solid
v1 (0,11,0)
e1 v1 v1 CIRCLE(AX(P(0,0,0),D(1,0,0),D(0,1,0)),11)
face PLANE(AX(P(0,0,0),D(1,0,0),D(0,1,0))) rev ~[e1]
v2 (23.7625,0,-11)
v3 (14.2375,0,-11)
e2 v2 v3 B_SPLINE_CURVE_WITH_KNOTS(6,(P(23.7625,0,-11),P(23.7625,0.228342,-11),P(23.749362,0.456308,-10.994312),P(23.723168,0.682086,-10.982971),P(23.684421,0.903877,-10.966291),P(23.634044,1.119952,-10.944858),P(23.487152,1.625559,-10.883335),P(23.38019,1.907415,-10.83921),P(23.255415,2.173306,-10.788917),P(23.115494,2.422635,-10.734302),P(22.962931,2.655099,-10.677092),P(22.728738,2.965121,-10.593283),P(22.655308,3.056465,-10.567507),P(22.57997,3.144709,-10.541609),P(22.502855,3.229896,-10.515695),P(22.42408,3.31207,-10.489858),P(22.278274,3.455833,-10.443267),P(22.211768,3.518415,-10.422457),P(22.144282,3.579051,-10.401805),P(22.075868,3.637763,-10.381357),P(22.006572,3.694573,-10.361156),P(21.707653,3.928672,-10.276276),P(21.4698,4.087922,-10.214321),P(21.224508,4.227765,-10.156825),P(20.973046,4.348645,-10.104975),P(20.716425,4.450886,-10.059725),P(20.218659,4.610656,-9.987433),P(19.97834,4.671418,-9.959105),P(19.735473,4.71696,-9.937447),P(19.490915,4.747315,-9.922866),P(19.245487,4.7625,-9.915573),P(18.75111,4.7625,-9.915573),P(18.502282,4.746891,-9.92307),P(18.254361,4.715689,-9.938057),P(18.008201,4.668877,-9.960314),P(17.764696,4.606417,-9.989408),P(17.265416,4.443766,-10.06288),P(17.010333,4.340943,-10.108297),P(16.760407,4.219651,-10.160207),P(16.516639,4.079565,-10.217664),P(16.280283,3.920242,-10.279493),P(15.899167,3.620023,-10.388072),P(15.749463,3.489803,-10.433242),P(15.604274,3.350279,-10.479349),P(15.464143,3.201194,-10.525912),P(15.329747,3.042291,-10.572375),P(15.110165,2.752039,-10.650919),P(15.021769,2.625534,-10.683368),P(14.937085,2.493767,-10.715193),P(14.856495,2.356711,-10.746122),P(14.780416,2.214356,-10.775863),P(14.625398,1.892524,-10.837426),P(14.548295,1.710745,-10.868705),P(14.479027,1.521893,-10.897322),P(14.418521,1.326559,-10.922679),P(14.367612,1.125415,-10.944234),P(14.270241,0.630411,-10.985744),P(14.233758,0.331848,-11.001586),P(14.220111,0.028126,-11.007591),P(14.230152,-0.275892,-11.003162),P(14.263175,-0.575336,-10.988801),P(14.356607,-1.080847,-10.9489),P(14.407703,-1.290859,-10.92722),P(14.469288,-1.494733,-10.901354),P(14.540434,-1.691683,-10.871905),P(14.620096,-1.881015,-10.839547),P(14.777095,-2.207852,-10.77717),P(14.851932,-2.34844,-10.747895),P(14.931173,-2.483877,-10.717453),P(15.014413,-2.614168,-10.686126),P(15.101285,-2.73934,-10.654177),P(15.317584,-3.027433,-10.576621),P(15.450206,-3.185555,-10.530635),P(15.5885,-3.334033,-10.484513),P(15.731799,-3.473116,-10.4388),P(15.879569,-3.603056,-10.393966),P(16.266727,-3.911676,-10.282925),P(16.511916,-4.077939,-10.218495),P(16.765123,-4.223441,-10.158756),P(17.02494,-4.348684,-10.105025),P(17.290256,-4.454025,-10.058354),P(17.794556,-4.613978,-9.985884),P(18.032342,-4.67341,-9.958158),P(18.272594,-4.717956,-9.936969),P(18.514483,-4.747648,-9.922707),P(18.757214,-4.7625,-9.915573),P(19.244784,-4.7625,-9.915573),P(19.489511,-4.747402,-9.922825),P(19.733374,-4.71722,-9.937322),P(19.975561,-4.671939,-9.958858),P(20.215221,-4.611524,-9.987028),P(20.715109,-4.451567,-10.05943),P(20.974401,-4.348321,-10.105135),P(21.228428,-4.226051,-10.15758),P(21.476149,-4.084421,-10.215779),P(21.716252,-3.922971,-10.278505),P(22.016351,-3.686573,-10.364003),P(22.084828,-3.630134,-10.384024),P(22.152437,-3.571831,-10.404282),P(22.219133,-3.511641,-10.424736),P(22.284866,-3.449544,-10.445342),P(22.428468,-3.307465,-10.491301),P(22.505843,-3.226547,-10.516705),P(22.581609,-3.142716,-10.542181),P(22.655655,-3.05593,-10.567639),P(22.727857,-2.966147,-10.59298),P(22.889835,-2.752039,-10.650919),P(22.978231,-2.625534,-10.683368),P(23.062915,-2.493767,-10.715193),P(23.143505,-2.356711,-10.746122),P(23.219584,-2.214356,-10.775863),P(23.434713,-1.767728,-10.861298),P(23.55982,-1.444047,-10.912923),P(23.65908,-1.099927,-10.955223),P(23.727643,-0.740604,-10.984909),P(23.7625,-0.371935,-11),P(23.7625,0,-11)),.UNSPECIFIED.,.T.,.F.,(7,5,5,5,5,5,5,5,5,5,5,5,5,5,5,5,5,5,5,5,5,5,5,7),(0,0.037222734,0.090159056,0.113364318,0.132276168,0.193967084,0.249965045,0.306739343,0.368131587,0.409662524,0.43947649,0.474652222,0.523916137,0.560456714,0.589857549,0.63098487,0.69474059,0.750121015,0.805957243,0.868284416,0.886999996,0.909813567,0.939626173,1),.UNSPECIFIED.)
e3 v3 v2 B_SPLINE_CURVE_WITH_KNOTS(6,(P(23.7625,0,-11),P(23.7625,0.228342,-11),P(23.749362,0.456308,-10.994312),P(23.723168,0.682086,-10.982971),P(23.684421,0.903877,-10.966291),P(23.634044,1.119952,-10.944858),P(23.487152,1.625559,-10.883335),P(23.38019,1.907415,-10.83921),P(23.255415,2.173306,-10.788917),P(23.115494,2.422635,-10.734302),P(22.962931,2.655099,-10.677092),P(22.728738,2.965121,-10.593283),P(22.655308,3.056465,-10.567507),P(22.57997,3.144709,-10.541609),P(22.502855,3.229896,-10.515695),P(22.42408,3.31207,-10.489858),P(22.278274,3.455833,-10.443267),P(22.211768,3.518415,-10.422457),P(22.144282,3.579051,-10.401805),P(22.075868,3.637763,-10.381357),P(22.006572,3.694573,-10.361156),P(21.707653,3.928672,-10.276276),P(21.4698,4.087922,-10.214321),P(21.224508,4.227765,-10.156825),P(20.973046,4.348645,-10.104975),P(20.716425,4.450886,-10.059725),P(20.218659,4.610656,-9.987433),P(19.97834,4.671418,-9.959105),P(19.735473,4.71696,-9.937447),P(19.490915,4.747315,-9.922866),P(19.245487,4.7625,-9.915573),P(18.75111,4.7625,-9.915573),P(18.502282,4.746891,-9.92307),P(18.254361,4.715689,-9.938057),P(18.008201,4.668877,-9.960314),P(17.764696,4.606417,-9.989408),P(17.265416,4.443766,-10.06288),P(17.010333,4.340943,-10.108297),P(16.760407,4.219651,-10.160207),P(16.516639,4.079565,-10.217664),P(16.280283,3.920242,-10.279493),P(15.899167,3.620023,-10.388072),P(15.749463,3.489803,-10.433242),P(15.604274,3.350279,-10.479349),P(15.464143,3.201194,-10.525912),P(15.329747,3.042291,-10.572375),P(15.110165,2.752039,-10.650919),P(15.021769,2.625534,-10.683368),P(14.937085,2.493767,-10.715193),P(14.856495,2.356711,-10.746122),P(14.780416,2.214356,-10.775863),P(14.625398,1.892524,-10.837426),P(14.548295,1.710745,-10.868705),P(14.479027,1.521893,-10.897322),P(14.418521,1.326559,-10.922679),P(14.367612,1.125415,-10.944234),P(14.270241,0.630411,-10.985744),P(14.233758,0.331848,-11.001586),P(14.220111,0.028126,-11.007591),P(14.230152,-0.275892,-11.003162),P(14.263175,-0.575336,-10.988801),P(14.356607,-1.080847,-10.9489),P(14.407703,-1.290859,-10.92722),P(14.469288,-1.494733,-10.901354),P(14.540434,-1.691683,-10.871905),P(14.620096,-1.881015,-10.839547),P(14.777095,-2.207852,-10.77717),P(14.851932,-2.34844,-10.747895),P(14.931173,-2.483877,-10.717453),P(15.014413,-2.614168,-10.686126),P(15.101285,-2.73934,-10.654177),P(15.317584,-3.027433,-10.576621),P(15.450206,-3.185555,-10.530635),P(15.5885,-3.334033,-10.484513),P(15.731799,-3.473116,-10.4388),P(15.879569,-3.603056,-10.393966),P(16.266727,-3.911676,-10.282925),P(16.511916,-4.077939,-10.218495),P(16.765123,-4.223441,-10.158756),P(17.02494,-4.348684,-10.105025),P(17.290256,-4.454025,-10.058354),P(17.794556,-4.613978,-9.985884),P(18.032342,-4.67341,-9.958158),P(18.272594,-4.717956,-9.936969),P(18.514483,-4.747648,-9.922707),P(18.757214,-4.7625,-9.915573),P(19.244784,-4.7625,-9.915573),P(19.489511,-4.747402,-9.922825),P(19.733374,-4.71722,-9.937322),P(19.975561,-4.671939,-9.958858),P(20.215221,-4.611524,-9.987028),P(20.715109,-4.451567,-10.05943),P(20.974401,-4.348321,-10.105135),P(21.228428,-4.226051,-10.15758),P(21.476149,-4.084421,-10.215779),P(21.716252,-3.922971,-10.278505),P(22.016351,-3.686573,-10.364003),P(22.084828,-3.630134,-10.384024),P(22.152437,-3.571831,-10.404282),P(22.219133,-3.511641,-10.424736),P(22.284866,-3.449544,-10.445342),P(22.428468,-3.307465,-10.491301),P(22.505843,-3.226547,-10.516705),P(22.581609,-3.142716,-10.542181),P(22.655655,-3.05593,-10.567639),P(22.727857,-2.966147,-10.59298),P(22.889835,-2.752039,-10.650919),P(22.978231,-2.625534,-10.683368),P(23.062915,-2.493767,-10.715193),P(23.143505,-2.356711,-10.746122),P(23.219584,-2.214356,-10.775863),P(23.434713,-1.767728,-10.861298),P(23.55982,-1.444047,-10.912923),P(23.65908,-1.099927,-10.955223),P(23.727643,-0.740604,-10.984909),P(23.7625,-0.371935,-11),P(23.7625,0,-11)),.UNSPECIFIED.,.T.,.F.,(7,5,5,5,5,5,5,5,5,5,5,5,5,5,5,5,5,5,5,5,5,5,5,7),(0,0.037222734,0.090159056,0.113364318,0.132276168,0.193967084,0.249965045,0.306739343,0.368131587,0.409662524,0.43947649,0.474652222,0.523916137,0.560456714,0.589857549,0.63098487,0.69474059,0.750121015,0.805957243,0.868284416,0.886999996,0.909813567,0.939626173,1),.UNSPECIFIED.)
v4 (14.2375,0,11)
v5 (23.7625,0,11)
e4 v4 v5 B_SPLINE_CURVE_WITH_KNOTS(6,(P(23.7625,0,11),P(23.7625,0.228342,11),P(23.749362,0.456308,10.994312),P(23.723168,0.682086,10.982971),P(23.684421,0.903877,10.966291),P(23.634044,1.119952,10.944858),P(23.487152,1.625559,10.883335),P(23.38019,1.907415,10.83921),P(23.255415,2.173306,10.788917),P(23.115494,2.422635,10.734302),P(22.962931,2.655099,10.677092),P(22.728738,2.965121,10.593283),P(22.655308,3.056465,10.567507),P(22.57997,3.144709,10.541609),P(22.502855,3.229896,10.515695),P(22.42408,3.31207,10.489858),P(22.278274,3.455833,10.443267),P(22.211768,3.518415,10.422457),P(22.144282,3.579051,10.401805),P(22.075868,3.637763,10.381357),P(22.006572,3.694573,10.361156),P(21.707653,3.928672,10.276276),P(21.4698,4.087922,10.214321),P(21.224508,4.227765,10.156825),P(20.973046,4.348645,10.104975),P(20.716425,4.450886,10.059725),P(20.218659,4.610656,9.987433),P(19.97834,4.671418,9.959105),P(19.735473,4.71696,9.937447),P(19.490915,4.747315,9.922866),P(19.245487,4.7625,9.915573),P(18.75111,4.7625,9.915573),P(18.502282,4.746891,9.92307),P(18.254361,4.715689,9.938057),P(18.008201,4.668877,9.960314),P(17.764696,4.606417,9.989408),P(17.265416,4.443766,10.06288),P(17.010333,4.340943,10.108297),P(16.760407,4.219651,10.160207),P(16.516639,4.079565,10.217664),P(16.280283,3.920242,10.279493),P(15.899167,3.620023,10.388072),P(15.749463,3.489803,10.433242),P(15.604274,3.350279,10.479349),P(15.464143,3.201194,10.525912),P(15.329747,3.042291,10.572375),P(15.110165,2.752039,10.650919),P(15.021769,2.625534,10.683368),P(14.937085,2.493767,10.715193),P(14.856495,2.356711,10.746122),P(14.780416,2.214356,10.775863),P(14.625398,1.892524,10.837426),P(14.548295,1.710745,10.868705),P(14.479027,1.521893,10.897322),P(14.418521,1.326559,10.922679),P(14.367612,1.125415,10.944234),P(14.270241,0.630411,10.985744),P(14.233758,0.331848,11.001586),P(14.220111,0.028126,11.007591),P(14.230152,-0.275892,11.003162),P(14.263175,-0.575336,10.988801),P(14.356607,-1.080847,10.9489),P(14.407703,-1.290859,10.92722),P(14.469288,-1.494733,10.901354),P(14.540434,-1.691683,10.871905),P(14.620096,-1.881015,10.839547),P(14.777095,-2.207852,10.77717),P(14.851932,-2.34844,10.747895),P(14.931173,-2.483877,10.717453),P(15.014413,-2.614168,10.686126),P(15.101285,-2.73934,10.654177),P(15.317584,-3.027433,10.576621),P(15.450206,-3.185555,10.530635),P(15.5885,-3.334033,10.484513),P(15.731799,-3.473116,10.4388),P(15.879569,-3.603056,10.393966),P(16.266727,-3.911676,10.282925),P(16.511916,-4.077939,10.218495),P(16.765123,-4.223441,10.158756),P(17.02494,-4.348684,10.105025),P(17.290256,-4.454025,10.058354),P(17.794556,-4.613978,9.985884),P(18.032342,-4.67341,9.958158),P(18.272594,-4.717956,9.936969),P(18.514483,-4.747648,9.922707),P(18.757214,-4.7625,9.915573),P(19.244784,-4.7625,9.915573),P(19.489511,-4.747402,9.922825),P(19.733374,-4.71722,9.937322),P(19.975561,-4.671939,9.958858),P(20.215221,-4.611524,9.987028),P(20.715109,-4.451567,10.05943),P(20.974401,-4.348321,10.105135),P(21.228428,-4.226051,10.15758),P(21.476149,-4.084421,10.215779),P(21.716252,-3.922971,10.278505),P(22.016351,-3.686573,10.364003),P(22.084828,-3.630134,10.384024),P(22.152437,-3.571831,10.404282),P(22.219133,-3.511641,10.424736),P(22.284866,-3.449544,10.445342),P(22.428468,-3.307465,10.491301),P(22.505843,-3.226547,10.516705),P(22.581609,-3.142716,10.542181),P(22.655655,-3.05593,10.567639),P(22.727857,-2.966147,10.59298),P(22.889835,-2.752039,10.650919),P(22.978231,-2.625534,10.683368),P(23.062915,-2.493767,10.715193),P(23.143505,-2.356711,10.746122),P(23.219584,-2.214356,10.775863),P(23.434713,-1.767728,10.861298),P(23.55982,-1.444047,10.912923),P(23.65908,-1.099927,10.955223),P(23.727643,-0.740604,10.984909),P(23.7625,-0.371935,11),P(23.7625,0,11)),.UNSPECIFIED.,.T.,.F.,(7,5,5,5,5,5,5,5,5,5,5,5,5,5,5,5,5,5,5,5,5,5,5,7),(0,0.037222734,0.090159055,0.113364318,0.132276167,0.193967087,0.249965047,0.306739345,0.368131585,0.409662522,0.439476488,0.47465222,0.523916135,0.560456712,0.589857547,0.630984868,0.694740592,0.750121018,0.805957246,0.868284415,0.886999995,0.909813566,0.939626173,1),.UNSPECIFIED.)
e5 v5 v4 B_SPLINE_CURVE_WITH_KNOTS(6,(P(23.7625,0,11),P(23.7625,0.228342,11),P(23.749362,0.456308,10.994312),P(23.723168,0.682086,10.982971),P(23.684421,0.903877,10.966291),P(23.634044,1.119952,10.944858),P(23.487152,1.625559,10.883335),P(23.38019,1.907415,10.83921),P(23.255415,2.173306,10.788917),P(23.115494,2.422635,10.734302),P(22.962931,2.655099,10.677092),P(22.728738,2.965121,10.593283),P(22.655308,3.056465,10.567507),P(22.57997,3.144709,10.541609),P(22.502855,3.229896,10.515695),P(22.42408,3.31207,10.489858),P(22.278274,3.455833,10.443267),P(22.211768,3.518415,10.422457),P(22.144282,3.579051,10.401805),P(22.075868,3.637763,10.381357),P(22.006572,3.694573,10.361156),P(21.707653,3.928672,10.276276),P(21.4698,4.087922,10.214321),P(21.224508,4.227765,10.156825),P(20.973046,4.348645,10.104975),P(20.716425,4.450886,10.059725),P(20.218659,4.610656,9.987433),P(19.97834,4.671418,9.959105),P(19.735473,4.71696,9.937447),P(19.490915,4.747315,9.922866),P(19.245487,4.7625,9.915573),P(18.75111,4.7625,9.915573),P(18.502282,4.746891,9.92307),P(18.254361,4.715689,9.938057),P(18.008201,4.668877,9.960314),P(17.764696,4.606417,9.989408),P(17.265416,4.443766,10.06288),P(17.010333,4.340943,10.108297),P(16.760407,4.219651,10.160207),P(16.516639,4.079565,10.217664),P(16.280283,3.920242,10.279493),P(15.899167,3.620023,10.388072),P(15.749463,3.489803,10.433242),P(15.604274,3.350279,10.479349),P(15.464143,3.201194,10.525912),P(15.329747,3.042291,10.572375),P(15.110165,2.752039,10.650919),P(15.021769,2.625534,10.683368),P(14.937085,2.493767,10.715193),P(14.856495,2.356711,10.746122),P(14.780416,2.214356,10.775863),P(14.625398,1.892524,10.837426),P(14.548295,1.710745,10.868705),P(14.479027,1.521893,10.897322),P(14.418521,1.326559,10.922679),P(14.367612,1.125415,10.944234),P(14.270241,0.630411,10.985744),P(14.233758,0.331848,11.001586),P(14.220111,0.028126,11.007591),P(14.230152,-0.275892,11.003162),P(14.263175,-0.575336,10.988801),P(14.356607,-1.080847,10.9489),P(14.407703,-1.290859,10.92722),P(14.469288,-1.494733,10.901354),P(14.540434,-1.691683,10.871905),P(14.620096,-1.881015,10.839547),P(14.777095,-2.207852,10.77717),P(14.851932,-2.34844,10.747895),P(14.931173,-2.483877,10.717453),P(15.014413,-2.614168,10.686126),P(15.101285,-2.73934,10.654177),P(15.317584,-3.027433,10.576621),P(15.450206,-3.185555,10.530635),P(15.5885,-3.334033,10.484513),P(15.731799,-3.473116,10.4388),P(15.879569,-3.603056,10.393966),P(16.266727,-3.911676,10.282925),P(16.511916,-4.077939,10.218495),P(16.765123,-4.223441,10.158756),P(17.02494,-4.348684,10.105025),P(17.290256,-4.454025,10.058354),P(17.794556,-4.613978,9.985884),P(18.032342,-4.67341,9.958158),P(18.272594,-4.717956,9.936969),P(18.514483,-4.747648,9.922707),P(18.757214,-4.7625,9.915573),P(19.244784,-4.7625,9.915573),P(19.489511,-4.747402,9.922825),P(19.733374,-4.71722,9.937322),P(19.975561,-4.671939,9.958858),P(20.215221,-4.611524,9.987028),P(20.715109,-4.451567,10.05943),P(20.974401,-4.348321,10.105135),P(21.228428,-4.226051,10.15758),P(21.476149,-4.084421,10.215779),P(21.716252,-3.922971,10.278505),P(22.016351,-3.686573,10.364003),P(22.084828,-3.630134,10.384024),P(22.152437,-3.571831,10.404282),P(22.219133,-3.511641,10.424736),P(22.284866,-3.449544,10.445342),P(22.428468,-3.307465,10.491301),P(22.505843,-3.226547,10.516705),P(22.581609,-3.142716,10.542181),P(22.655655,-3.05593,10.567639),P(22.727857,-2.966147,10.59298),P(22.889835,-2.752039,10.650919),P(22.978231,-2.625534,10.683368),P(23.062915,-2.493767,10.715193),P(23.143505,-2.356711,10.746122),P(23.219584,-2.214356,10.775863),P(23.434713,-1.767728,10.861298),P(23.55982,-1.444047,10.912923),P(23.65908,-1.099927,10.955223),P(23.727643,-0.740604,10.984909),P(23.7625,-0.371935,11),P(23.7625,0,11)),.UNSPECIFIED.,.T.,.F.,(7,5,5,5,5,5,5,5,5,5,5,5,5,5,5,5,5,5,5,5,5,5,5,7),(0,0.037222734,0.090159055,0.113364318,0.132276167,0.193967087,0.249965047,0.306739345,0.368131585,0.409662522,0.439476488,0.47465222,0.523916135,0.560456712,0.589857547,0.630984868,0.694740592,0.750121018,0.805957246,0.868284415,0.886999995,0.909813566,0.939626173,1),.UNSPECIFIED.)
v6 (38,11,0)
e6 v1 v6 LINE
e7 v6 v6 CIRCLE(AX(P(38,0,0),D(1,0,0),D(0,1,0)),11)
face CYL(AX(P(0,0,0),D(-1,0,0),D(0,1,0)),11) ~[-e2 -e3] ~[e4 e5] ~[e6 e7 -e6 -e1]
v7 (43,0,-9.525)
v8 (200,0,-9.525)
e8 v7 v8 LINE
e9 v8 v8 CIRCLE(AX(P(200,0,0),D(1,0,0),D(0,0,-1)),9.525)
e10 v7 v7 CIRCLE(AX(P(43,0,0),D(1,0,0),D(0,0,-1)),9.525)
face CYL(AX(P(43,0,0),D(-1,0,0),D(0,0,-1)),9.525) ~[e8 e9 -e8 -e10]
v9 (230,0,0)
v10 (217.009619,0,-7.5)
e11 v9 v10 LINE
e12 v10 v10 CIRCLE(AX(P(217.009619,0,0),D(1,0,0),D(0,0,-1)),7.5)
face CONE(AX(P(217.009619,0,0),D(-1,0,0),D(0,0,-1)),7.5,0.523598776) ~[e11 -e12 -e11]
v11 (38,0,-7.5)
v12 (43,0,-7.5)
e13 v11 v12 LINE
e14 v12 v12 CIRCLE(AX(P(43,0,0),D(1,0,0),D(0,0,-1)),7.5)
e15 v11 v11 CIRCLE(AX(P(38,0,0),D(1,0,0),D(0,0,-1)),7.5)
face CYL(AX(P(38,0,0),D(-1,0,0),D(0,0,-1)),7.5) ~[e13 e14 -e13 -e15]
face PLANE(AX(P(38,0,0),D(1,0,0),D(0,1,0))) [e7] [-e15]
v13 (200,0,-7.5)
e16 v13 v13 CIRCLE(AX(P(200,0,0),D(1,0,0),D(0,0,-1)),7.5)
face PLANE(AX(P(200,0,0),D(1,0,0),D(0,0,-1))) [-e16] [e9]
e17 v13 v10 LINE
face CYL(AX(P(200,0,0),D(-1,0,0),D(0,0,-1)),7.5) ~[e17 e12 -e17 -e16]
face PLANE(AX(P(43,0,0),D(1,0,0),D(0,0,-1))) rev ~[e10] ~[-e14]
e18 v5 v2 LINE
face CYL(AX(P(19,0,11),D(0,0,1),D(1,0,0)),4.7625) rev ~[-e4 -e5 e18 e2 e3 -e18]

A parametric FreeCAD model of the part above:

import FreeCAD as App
import Part
import Sketcher
from FreeCAD import Vector


def edges_at(feature, points):
    """Names of the edges that pass closest to the given points."""
    edges = feature.Shape.Edges
    near = lambda p: min(range(len(edges)), key=lambda i: edges[i].distToShape(Part.Vertex(*p))[0])
    return sorted({f"Edge{near(p) + 1}" for p in points})

doc = App.newDocument("Part")
body = doc.addObject("PartDesign::Body", "Body")

sketch1 = doc.addObject("Sketcher::SketchObject", "Sketch")
body.addObject(sketch1)
sketch1.AttachmentSupport = (doc.YZ_Plane, [""])
sketch1.MapMode = "FlatFace"
sketch1.addGeometry(Part.Circle(Vector(0, 0, 0), Vector(0, 0, 1), 11), False)
sketch1.addConstraint([
    Sketcher.Constraint("Coincident", 0, 3, -1, 1),
    Sketcher.Constraint("Diameter", 0, 22.0),
])
pad1 = doc.addObject("PartDesign::Pad", "Pad")
body.addObject(pad1)
pad1.Profile = sketch1
pad1.Length = 38

sketch2 = doc.addObject("Sketcher::SketchObject", "Sketch001")
body.addObject(sketch2)
sketch2.AttachmentSupport = (doc.YZ_Plane, [""])
sketch2.MapMode = "FlatFace"
sketch2.AttachmentOffset = App.Placement(Vector(0, 0, 38), App.Rotation())
sketch2.addGeometry(Part.Circle(Vector(0, 0, 0), Vector(0, 0, 1), 8), False)
sketch2.addConstraint([
    Sketcher.Constraint("Coincident", 0, 3, -1, 1),
    Sketcher.Constraint("Diameter", 0, 15.0),
])
pad2 = doc.addObject("PartDesign::Pad", "Pad001")
body.addObject(pad2)
pad2.Profile = sketch2
pad2.Length = 5

sketch3 = doc.addObject("Sketcher::SketchObject", "Sketch002")
body.addObject(sketch3)
sketch3.AttachmentSupport = (doc.XY_Plane, [""])
sketch3.MapMode = "FlatFace"
sketch3.AttachmentOffset = App.Placement(Vector(0, 0, 11), App.Rotation())
sketch3.addGeometry(Part.Circle(Vector(19, 0, 0), Vector(0, 0, 1), 4.8), False)
sketch3.addConstraint([
    Sketcher.Constraint("PointOnObject", 0, 3, -1),
    Sketcher.Constraint("Diameter", 0, 9.525),
    Sketcher.Constraint("DistanceX", -1, 1, 0, 3, 19.0),
])
pocket1 = doc.addObject("PartDesign::Pocket", "Pocket")
body.addObject(pocket1)
pocket1.Profile = sketch3
pocket1.Length = 22

sketch4 = doc.addObject("Sketcher::SketchObject", "Sketch003")
body.addObject(sketch4)
sketch4.AttachmentSupport = (doc.YZ_Plane, [""])
sketch4.MapMode = "FlatFace"
sketch4.AttachmentOffset = App.Placement(Vector(0, 0, 43), App.Rotation())
sketch4.addGeometry(Part.Circle(Vector(0, 0, 0), Vector(0, 0, 1), 10), False)
sketch4.addConstraint([
    Sketcher.Constraint("Coincident", 0, 3, -1, 1),
    Sketcher.Constraint("Diameter", 0, 19.05),
])
pad3 = doc.addObject("PartDesign::Pad", "Pad002")
body.addObject(pad3)
pad3.Profile = sketch4
pad3.Length = 157

sketch5 = doc.addObject("Sketcher::SketchObject", "Sketch004")
body.addObject(sketch5)
sketch5.AttachmentSupport = (doc.YZ_Plane, [""])
sketch5.MapMode = "FlatFace"
sketch5.AttachmentOffset = App.Placement(Vector(0, 0, 200), App.Rotation())
sketch5.addGeometry(Part.Circle(Vector(0, 0, 0), Vector(0, 0, 1), 8), False)
sketch5.addConstraint([
    Sketcher.Constraint("Coincident", 0, 3, -1, 1),
    Sketcher.Constraint("Diameter", 0, 15.0),
])
pad4 = doc.addObject("PartDesign::Pad", "Pad003")
body.addObject(pad4)
pad4.Profile = sketch5
pad4.Length = 30
doc.recompute()

chamfer = doc.addObject("PartDesign::Chamfer", "Chamfer")
body.addObject(chamfer)
chamfer.Base = (pad4, edges_at(pad4, [(230, 0, 7.5)]))
chamfer.ChamferType = "Distance and Angle"
chamfer.Size = 7.5
chamfer.Angle = 60
chamfer.FlipDirection = True

doc.recompute()
